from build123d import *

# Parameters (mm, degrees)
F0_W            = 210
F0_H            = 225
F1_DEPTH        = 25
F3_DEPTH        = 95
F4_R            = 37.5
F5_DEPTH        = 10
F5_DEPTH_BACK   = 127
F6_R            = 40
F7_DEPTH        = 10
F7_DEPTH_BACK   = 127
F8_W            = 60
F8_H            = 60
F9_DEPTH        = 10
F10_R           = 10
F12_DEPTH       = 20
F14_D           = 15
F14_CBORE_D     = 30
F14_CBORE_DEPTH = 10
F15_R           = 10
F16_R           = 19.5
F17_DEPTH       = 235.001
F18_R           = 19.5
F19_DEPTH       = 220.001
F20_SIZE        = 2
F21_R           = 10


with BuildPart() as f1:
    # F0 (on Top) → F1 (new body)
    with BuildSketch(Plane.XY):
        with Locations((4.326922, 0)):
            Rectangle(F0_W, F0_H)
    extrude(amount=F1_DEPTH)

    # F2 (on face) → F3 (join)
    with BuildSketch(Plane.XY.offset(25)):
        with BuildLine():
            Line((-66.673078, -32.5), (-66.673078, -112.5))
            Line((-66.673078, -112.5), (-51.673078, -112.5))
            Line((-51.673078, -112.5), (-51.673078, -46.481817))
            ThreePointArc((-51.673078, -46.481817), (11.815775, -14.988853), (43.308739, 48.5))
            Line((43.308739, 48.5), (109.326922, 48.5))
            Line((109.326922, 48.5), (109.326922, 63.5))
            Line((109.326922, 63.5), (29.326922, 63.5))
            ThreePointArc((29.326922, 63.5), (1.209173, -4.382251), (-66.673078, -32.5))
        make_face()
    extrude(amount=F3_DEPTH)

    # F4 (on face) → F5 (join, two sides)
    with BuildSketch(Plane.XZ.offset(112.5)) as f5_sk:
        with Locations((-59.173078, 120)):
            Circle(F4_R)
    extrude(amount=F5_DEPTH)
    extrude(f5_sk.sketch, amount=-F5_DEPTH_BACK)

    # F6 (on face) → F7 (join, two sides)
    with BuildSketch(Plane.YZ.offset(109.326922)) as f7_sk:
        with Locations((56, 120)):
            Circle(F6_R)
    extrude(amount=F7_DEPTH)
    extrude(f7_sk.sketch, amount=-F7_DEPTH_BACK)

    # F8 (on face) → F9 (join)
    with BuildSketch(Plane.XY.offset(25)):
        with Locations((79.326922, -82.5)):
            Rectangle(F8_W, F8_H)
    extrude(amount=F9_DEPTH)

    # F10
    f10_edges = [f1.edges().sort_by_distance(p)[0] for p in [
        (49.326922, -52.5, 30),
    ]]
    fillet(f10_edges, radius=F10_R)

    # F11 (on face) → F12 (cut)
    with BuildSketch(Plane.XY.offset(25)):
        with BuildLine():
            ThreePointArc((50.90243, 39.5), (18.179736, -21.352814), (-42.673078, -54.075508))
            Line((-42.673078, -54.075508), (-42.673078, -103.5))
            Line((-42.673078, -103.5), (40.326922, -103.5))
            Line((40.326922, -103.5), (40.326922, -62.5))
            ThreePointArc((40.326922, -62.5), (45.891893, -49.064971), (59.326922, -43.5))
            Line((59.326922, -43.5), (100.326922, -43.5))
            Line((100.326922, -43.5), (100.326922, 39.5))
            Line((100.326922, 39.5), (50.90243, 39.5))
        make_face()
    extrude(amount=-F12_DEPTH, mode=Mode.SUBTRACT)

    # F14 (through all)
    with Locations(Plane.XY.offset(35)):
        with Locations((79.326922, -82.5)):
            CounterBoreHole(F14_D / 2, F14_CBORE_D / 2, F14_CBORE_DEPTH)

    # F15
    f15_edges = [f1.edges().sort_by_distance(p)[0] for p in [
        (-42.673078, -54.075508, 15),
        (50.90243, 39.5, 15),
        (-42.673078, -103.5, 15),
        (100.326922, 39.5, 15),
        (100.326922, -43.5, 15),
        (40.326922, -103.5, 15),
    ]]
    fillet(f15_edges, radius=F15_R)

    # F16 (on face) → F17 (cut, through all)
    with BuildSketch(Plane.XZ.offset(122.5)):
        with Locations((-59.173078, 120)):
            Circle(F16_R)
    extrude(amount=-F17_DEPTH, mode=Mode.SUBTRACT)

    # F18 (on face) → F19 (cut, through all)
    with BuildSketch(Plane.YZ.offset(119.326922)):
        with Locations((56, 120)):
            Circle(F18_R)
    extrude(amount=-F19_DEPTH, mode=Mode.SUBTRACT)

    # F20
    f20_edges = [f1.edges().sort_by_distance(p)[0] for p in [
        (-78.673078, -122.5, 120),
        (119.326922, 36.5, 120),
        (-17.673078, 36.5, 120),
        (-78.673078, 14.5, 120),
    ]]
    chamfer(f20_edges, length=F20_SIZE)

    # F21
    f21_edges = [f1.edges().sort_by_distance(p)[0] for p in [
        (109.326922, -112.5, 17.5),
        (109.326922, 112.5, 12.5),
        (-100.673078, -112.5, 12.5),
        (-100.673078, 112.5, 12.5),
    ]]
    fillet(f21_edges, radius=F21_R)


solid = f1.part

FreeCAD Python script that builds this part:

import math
import FreeCAD as App
import Part
import Sketcher


def edges_at(feature, points):
    """Names of the edges that pass closest to the given points."""
    edges = feature.Shape.Edges
    near = lambda p: min(range(len(edges)), key=lambda i: edges[i].distToShape(Part.Vertex(*p))[0])
    return sorted({f"Edge{near(p) + 1}" for p in points})

doc = App.newDocument("Part")
params = doc.addObject("Spreadsheet::Sheet", "Params")
for row, (alias, value) in enumerate([
    ("sketch1_width", "210 mm"),
    ("sketch1_height", "225 mm"),
    ("pad1_length", "25 mm"),
    ("sketch2_radius", "111 mm"),
    ("sketch2_radius2", "96 mm"),
    ("sketch2_width", "15 mm"),
    ("sketch2_width2", "80 mm"),
    ("pad2_length", "95 mm"),
    ("sketch3_diameter", "75 mm"),
    ("pad3_length", "10 mm"),
    ("pad3_length2", "127 mm"),
    ("sketch4_diameter", "80 mm"),
    ("pad4_length", "10 mm"),
    ("pad4_length2", "127 mm"),
    ("sketch5_width", "60 mm"),
    ("pad5_length", "10 mm"),
    ("fillet_radius", "10 mm"),
    ("sketch6_radius", "120 mm"),
    ("sketch6_radius2", "18.999999 mm"),
    ("sketch6_width", "83 mm"),
    ("sketch6_width2", "41 mm"),
    ("pocket1_length", "20 mm"),
    ("sketch7_diameter", "15 mm"),
    ("hole_diameter", "15 mm"),
    ("hole_cbore_diameter", "30 mm"),
    ("hole_cbore_depth", "10 mm"),
    ("fillet2_radius", "10 mm"),
    ("sketch8_diameter", "39 mm"),
    ("sketch9_diameter", "39 mm"),
    ("chamfer_size", "2 mm"),
    ("fillet3_radius", "10 mm"),
], start=1):
    params.set(f"A{row}", alias)
    params.set(f"B{row}", "=" + value)
    params.setAlias(f"B{row}", alias)

body = doc.addObject("PartDesign::Body", "Body")

sketch1 = body.newObject("Sketcher::SketchObject", "Sketch")
sketch1.AttachmentSupport = (doc.getObject("XY_Plane"), [""])
sketch1.MapMode = "FlatFace"
sketch1.addGeometry(Part.LineSegment(App.Vector(-100.673078, 112.5, 0), App.Vector(-100.673078, -112.5, 0)), False)
sketch1.addGeometry(Part.LineSegment(App.Vector(-100.673078, -112.5, 0), App.Vector(109.326922, -112.5, 0)), False)
sketch1.addGeometry(Part.LineSegment(App.Vector(109.326922, -112.5, 0), App.Vector(109.326922, 112.5, 0)), False)
sketch1.addGeometry(Part.LineSegment(App.Vector(109.326922, 112.5, 0), App.Vector(-100.673078, 112.5, 0)), False)
sketch1.addConstraint(Sketcher.Constraint("Coincident", 0, 2, 1, 1))
sketch1.addConstraint(Sketcher.Constraint("Coincident", 1, 2, 2, 1))
sketch1.addConstraint(Sketcher.Constraint("Coincident", 2, 2, 3, 1))
sketch1.addConstraint(Sketcher.Constraint("Coincident", 3, 2, 0, 1))
sketch1.addConstraint(Sketcher.Constraint("Vertical", 0))
sketch1.addConstraint(Sketcher.Constraint("Horizontal", 1))
sketch1.addConstraint(Sketcher.Constraint("Vertical", 2))
sketch1.addConstraint(Sketcher.Constraint("Horizontal", 3))
sketch1.addConstraint(Sketcher.Constraint("DistanceX", 1, 1, 1, 2, 210.0))
sketch1.addConstraint(Sketcher.Constraint("DistanceY", 0, 2, 0, 1, 225.0))
sketch1.addConstraint(Sketcher.Constraint("DistanceY", 0, 2, -1, 1, 112.5))
sketch1.addConstraint(Sketcher.Constraint("DistanceX", 0, 2, -1, 1, 100.673078))
sketch1.setExpression("Constraints[8]", "Params.sketch1_width")
sketch1.setExpression("Constraints[9]", "Params.sketch1_height")
pad1 = body.newObject("PartDesign::Pad", "Pad")
pad1.Profile = sketch1
pad1.setExpression("Length", "Params.pad1_length")

sketch2 = body.newObject("Sketcher::SketchObject", "Sketch001")
sketch2.AttachmentSupport = (doc.getObject("XY_Plane"), [""])
sketch2.MapMode = "FlatFace"
sketch2.AttachmentOffset = App.Placement(App.Vector(0, 0, 25), App.Rotation())
sketch2.addGeometry(Part.LineSegment(App.Vector(-66.673078, -32.5, 0), App.Vector(-66.673078, -112.5, 0)), False)
sketch2.addGeometry(Part.LineSegment(App.Vector(-66.673078, -112.5, 0), App.Vector(-51.673078, -112.5, 0)), False)
sketch2.addGeometry(Part.LineSegment(App.Vector(-51.673078, -112.5, 0), App.Vector(-51.673078, -46.481817, 0)), False)
sketch2.addGeometry(Part.ArcOfCircle(Part.Circle(App.Vector(-66.673078, 63.5, 0), App.Vector(0, 0, 1), 111), math.radians(-82.233566), math.radians(-7.766434)), False)
sketch2.addGeometry(Part.LineSegment(App.Vector(43.308739, 48.5, 0), App.Vector(109.326922, 48.5, 0)), False)
sketch2.addGeometry(Part.LineSegment(App.Vector(109.326922, 48.5, 0), App.Vector(109.326922, 63.5, 0)), False)
sketch2.addGeometry(Part.LineSegment(App.Vector(109.326922, 63.5, 0), App.Vector(29.326922, 63.5, 0)), False)
sketch2.addGeometry(Part.ArcOfCircle(Part.Circle(App.Vector(-66.673078, 63.5, 0), App.Vector(0, 0, 1), 96), math.radians(-90), math.radians(0)), False)
sketch2.addConstraint(Sketcher.Constraint("Coincident", 0, 2, 1, 1))
sketch2.addConstraint(Sketcher.Constraint("Coincident", 1, 2, 2, 1))
sketch2.addConstraint(Sketcher.Constraint("Coincident", 2, 2, 3, 1))
sketch2.addConstraint(Sketcher.Constraint("Coincident", 3, 2, 4, 1))
sketch2.addConstraint(Sketcher.Constraint("Coincident", 4, 2, 5, 1))
sketch2.addConstraint(Sketcher.Constraint("Coincident", 5, 2, 6, 1))
sketch2.addConstraint(Sketcher.Constraint("Coincident", 6, 2, 7, 2))
sketch2.addConstraint(Sketcher.Constraint("Coincident", 7, 1, 0, 1))
sketch2.addConstraint(Sketcher.Constraint("Vertical", 0))
sketch2.addConstraint(Sketcher.Constraint("Horizontal", 1))
sketch2.addConstraint(Sketcher.Constraint("Vertical", 2))
sketch2.addConstraint(Sketcher.Constraint("Horizontal", 4))
sketch2.addConstraint(Sketcher.Constraint("Vertical", 5))
sketch2.addConstraint(Sketcher.Constraint("Horizontal", 6))
sketch2.addConstraint(Sketcher.Constraint("Coincident", 7, 3, 3, 3))
sketch2.addConstraint(Sketcher.Constraint("Horizontal", 7, 3, 5, 2))
sketch2.addConstraint(Sketcher.Constraint("Vertical", 7, 3, 0, 2))
sketch2.addConstraint(Sketcher.Constraint("Equal", 6, 0))
sketch2.addConstraint(Sketcher.Constraint("Equal", 4, 2))
sketch2.addConstraint(Sketcher.Constraint("Radius", 3, 111.0))
sketch2.addConstraint(Sketcher.Constraint("Radius", 7, 96.0))
sketch2.addConstraint(Sketcher.Constraint("DistanceX", 1, 1, 1, 2, 15.0))
sketch2.addConstraint(Sketcher.Constraint("DistanceX", 6, 2, 6, 1, 80.0))
sketch2.addConstraint(Sketcher.Constraint("DistanceY", -1, 1, 3, 3, 63.5))
sketch2.addConstraint(Sketcher.Constraint("DistanceX", 0, 2, -1, 1, 66.673078))
sketch2.setExpression("Constraints[19]", "Params.sketch2_radius")
sketch2.setExpression("Constraints[20]", "Params.sketch2_radius2")
sketch2.setExpression("Constraints[21]", "Params.sketch2_width")
sketch2.setExpression("Constraints[22]", "Params.sketch2_width2")
pad2 = body.newObject("PartDesign::Pad", "Pad001")
pad2.Profile = sketch2
pad2.setExpression("Length", "Params.pad2_length")

sketch3 = body.newObject("Sketcher::SketchObject", "Sketch002")
sketch3.AttachmentSupport = (doc.getObject("XZ_Plane"), [""])
sketch3.MapMode = "FlatFace"
sketch3.AttachmentOffset = App.Placement(App.Vector(0, 0, 112.5), App.Rotation())
sketch3.addGeometry(Part.Circle(App.Vector(-59.173078, 120, 0), App.Vector(0, 0, 1), 37.5), False)
sketch3.addConstraint(Sketcher.Constraint("Diameter", 0, 75.0))
sketch3.addConstraint(Sketcher.Constraint("DistanceY", -1, 1, 0, 3, 120.0))
sketch3.addConstraint(Sketcher.Constraint("DistanceX", 0, 3, -1, 1, 59.173078))
sketch3.setExpression("Constraints[0]", "Params.sketch3_diameter")
pad3 = body.newObject("PartDesign::Pad", "Pad002")
pad3.Profile = sketch3
pad3.Type = "TwoLengths"
pad3.setExpression("Length", "Params.pad3_length")
pad3.setExpression("Length2", "Params.pad3_length2")

sketch4 = body.newObject("Sketcher::SketchObject", "Sketch003")
sketch4.AttachmentSupport = (doc.getObject("YZ_Plane"), [""])
sketch4.MapMode = "FlatFace"
sketch4.AttachmentOffset = App.Placement(App.Vector(0, 0, 109.326922), App.Rotation())
sketch4.addGeometry(Part.Circle(App.Vector(56, 120, 0), App.Vector(0, 0, 1), 40), False)
sketch4.addConstraint(Sketcher.Constraint("Diameter", 0, 80.0))
sketch4.addConstraint(Sketcher.Constraint("DistanceX", -1, 1, 0, 3, 56.0))
sketch4.addConstraint(Sketcher.Constraint("DistanceY", -1, 1, 0, 3, 120.0))
sketch4.setExpression("Constraints[0]", "Params.sketch4_diameter")
pad4 = body.newObject("PartDesign::Pad", "Pad003")
pad4.Profile = sketch4
pad4.Type = "TwoLengths"
pad4.setExpression("Length", "Params.pad4_length")
pad4.setExpression("Length2", "Params.pad4_length2")

sketch5 = body.newObject("Sketcher::SketchObject", "Sketch004")
sketch5.AttachmentSupport = (doc.getObject("XY_Plane"), [""])
sketch5.MapMode = "FlatFace"
sketch5.AttachmentOffset = App.Placement(App.Vector(0, 0, 25), App.Rotation())
sketch5.addGeometry(Part.LineSegment(App.Vector(49.326922, -52.5, 0), App.Vector(49.326922, -112.5, 0)), False)
sketch5.addGeometry(Part.LineSegment(App.Vector(49.326922, -112.5, 0), App.Vector(109.326922, -112.5, 0)), False)
sketch5.addGeometry(Part.LineSegment(App.Vector(109.326922, -112.5, 0), App.Vector(109.326922, -52.5, 0)), False)
sketch5.addGeometry(Part.LineSegment(App.Vector(109.326922, -52.5, 0), App.Vector(49.326922, -52.5, 0)), False)
sketch5.addConstraint(Sketcher.Constraint("Coincident", 0, 2, 1, 1))
sketch5.addConstraint(Sketcher.Constraint("Coincident", 1, 2, 2, 1))
sketch5.addConstraint(Sketcher.Constraint("Coincident", 2, 2, 3, 1))
sketch5.addConstraint(Sketcher.Constraint("Coincident", 3, 2, 0, 1))
sketch5.addConstraint(Sketcher.Constraint("Vertical", 0))
sketch5.addConstraint(Sketcher.Constraint("Horizontal", 1))
sketch5.addConstraint(Sketcher.Constraint("Vertical", 2))
sketch5.addConstraint(Sketcher.Constraint("Horizontal", 3))
sketch5.addConstraint(Sketcher.Constraint("Equal", 3, 0))
sketch5.addConstraint(Sketcher.Constraint("DistanceX", 1, 1, 1, 2, 60.0))
sketch5.addConstraint(Sketcher.Constraint("DistanceY", 0, 2, -1, 1, 112.5))
sketch5.addConstraint(Sketcher.Constraint("DistanceX", -1, 1, 1, 2, 109.326922))
sketch5.setExpression("Constraints[9]", "Params.sketch5_width")
pad5 = body.newObject("PartDesign::Pad", "Pad004")
pad5.Profile = sketch5
pad5.setExpression("Length", "Params.pad5_length")
doc.recompute()

fillet = body.newObject("PartDesign::Fillet", "Fillet")
fillet.Base = (pad5, edges_at(pad5, [(49.327, -52.5, 30)]))
fillet.setExpression("Radius", "Params.fillet_radius")

sketch6 = body.newObject("Sketcher::SketchObject", "Sketch005")
sketch6.AttachmentSupport = (doc.getObject("XY_Plane"), [""])
sketch6.MapMode = "FlatFace"
sketch6.AttachmentOffset = App.Placement(App.Vector(0, 0, 25), App.Rotation())
sketch6.addGeometry(Part.ArcOfCircle(Part.Circle(App.Vector(-66.673078, 63.5, 0), App.Vector(0, 0, 1), 120), math.radians(-78.463041), math.radians(-11.536959)), False)
sketch6.addGeometry(Part.LineSegment(App.Vector(-42.673078, -54.075508, 0), App.Vector(-42.673078, -103.5, 0)), False)
sketch6.addGeometry(Part.LineSegment(App.Vector(-42.673078, -103.5, 0), App.Vector(40.326922, -103.5, 0)), False)
sketch6.addGeometry(Part.LineSegment(App.Vector(40.326922, -103.5, 0), App.Vector(40.326922, -62.5, 0)), False)
sketch6.addGeometry(Part.ArcOfCircle(Part.Circle(App.Vector(59.326921, -62.499999, 0), App.Vector(0, 0, 1), 18.999999), math.radians(89.999998), math.radians(180.000002)), False)
sketch6.addGeometry(Part.LineSegment(App.Vector(59.326922, -43.5, 0), App.Vector(100.326922, -43.5, 0)), False)
sketch6.addGeometry(Part.LineSegment(App.Vector(100.326922, -43.5, 0), App.Vector(100.326922, 39.5, 0)), False)
sketch6.addGeometry(Part.LineSegment(App.Vector(100.326922, 39.5, 0), App.Vector(50.90243, 39.5, 0)), False)
sketch6.addConstraint(Sketcher.Constraint("Coincident", 0, 1, 1, 1))
sketch6.addConstraint(Sketcher.Constraint("Coincident", 1, 2, 2, 1))
sketch6.addConstraint(Sketcher.Constraint("Coincident", 2, 2, 3, 1))
sketch6.addConstraint(Sketcher.Constraint("Tangent", 3, 2, 4, 2))
sketch6.addConstraint(Sketcher.Constraint("Tangent", 4, 1, 5, 1))
sketch6.addConstraint(Sketcher.Constraint("Coincident", 5, 2, 6, 1))
sketch6.addConstraint(Sketcher.Constraint("Coincident", 6, 2, 7, 1))
sketch6.addConstraint(Sketcher.Constraint("Coincident", 7, 2, 0, 2))
sketch6.addConstraint(Sketcher.Constraint("Vertical", 1))
sketch6.addConstraint(Sketcher.Constraint("Horizontal", 2))
sketch6.addConstraint(Sketcher.Constraint("Vertical", 3))
sketch6.addConstraint(Sketcher.Constraint("Horizontal", 5))
sketch6.addConstraint(Sketcher.Constraint("Vertical", 6))
sketch6.addConstraint(Sketcher.Constraint("Horizontal", 7))
sketch6.addConstraint(Sketcher.Constraint("Equal", 7, 1))
sketch6.addConstraint(Sketcher.Constraint("Equal", 5, 3))
sketch6.addConstraint(Sketcher.Constraint("Equal", 2, 6))
sketch6.addConstraint(Sketcher.Constraint("Radius", 0, 120.0))
sketch6.addConstraint(Sketcher.Constraint("Radius", 4, 18.999999))
sketch6.addConstraint(Sketcher.Constraint("DistanceX", 2, 1, 2, 2, 83.0))
sketch6.addConstraint(Sketcher.Constraint("DistanceX", 5, 1, 5, 2, 41.0))
sketch6.addConstraint(Sketcher.Constraint("DistanceX", 0, 3, 4, 3, 125.999999))
sketch6.addConstraint(Sketcher.Constraint("DistanceY", -1, 1, 0, 3, 63.5))
sketch6.addConstraint(Sketcher.Constraint("DistanceX", -1, 1, 4, 3, 59.326921))
sketch6.setExpression("Constraints[17]", "Params.sketch6_radius")
sketch6.setExpression("Constraints[18]", "Params.sketch6_radius2")
sketch6.setExpression("Constraints[19]", "Params.sketch6_width")
sketch6.setExpression("Constraints[20]", "Params.sketch6_width2")
pocket1 = body.newObject("PartDesign::Pocket", "Pocket")
pocket1.Profile = sketch6
pocket1.setExpression("Length", "Params.pocket1_length")

sketch7 = body.newObject("Sketcher::SketchObject", "Sketch006")
sketch7.AttachmentSupport = (doc.getObject("XY_Plane"), [""])
sketch7.MapMode = "FlatFace"
sketch7.AttachmentOffset = App.Placement(App.Vector(0, 0, 35), App.Rotation())
sketch7.addGeometry(Part.Circle(App.Vector(79.326922, -82.5, 0), App.Vector(0, 0, 1), 7.5), False)
sketch7.addConstraint(Sketcher.Constraint("Diameter", 0, 15.0))
sketch7.addConstraint(Sketcher.Constraint("DistanceY", 0, 3, -1, 1, 82.5))
sketch7.addConstraint(Sketcher.Constraint("DistanceX", -1, 1, 0, 3, 79.326922))
sketch7.setExpression("Constraints[0]", "Params.sketch7_diameter")
doc.recompute()
hole = body.newObject("PartDesign::Hole", "Hole")
hole.Profile = sketch7
hole.ThreadType = "None"
hole.setExpression("Diameter", "Params.hole_diameter")
hole.DepthType = "ThroughAll"
hole.HoleCutType = "Counterbore"
hole.setExpression("HoleCutDiameter", "Params.hole_cbore_diameter")
hole.setExpression("HoleCutDepth", "Params.hole_cbore_depth")
doc.recompute()

fillet2 = body.newObject("PartDesign::Fillet", "Fillet001")
fillet2.Base = (hole, edges_at(hole, [
    (-42.673, -54.076, 15),
    (50.902, 39.5, 15),
    (-42.673, -103.5, 15),
    (100.327, 39.5, 15),
    (100.327, -43.5, 15),
    (40.327, -103.5, 15),
]))
fillet2.setExpression("Radius", "Params.fillet2_radius")

sketch8 = body.newObject("Sketcher::SketchObject", "Sketch007")
sketch8.AttachmentSupport = (doc.getObject("XZ_Plane"), [""])
sketch8.MapMode = "FlatFace"
sketch8.AttachmentOffset = App.Placement(App.Vector(0, 0, 122.5), App.Rotation())
sketch8.addGeometry(Part.Circle(App.Vector(-59.173078, 120, 0), App.Vector(0, 0, 1), 19.5), False)
sketch8.addConstraint(Sketcher.Constraint("Diameter", 0, 39.0))
sketch8.addConstraint(Sketcher.Constraint("DistanceY", -1, 1, 0, 3, 120.0))
sketch8.addConstraint(Sketcher.Constraint("DistanceX", 0, 3, -1, 1, 59.173078))
sketch8.setExpression("Constraints[0]", "Params.sketch8_diameter")
pocket2 = body.newObject("PartDesign::Pocket", "Pocket001")
pocket2.Profile = sketch8
pocket2.Type = "ThroughAll"

sketch9 = body.newObject("Sketcher::SketchObject", "Sketch008")
sketch9.AttachmentSupport = (doc.getObject("YZ_Plane"), [""])
sketch9.MapMode = "FlatFace"
sketch9.AttachmentOffset = App.Placement(App.Vector(0, 0, 119.326922), App.Rotation())
sketch9.addGeometry(Part.Circle(App.Vector(56, 120, 0), App.Vector(0, 0, 1), 19.5), False)
sketch9.addConstraint(Sketcher.Constraint("Diameter", 0, 39.0))
sketch9.addConstraint(Sketcher.Constraint("DistanceX", -1, 1, 0, 3, 56.0))
sketch9.addConstraint(Sketcher.Constraint("DistanceY", -1, 1, 0, 3, 120.0))
sketch9.setExpression("Constraints[0]", "Params.sketch9_diameter")
pocket3 = body.newObject("PartDesign::Pocket", "Pocket002")
pocket3.Profile = sketch9
pocket3.Type = "ThroughAll"
doc.recompute()

chamfer = body.newObject("PartDesign::Chamfer", "Chamfer")
chamfer.Base = (pocket3, edges_at(pocket3, [
    (-78.673, -122.5, 120),
    (119.327, 36.5, 120),
    (-17.673, 36.5, 120),
    (-78.673, 14.5, 120),
]))
chamfer.setExpression("Size", "Params.chamfer_size")
doc.recompute()

fillet3 = body.newObject("PartDesign::Fillet", "Fillet002")
fillet3.Base = (chamfer, edges_at(chamfer, [
    (109.327, -112.5, 17.5),
    (109.327, 112.5, 12.5),
    (-100.673, -112.5, 12.5),
    (-100.673, 112.5, 12.5),
]))
fillet3.setExpression("Radius", "Params.fillet3_radius")

doc.recompute()
